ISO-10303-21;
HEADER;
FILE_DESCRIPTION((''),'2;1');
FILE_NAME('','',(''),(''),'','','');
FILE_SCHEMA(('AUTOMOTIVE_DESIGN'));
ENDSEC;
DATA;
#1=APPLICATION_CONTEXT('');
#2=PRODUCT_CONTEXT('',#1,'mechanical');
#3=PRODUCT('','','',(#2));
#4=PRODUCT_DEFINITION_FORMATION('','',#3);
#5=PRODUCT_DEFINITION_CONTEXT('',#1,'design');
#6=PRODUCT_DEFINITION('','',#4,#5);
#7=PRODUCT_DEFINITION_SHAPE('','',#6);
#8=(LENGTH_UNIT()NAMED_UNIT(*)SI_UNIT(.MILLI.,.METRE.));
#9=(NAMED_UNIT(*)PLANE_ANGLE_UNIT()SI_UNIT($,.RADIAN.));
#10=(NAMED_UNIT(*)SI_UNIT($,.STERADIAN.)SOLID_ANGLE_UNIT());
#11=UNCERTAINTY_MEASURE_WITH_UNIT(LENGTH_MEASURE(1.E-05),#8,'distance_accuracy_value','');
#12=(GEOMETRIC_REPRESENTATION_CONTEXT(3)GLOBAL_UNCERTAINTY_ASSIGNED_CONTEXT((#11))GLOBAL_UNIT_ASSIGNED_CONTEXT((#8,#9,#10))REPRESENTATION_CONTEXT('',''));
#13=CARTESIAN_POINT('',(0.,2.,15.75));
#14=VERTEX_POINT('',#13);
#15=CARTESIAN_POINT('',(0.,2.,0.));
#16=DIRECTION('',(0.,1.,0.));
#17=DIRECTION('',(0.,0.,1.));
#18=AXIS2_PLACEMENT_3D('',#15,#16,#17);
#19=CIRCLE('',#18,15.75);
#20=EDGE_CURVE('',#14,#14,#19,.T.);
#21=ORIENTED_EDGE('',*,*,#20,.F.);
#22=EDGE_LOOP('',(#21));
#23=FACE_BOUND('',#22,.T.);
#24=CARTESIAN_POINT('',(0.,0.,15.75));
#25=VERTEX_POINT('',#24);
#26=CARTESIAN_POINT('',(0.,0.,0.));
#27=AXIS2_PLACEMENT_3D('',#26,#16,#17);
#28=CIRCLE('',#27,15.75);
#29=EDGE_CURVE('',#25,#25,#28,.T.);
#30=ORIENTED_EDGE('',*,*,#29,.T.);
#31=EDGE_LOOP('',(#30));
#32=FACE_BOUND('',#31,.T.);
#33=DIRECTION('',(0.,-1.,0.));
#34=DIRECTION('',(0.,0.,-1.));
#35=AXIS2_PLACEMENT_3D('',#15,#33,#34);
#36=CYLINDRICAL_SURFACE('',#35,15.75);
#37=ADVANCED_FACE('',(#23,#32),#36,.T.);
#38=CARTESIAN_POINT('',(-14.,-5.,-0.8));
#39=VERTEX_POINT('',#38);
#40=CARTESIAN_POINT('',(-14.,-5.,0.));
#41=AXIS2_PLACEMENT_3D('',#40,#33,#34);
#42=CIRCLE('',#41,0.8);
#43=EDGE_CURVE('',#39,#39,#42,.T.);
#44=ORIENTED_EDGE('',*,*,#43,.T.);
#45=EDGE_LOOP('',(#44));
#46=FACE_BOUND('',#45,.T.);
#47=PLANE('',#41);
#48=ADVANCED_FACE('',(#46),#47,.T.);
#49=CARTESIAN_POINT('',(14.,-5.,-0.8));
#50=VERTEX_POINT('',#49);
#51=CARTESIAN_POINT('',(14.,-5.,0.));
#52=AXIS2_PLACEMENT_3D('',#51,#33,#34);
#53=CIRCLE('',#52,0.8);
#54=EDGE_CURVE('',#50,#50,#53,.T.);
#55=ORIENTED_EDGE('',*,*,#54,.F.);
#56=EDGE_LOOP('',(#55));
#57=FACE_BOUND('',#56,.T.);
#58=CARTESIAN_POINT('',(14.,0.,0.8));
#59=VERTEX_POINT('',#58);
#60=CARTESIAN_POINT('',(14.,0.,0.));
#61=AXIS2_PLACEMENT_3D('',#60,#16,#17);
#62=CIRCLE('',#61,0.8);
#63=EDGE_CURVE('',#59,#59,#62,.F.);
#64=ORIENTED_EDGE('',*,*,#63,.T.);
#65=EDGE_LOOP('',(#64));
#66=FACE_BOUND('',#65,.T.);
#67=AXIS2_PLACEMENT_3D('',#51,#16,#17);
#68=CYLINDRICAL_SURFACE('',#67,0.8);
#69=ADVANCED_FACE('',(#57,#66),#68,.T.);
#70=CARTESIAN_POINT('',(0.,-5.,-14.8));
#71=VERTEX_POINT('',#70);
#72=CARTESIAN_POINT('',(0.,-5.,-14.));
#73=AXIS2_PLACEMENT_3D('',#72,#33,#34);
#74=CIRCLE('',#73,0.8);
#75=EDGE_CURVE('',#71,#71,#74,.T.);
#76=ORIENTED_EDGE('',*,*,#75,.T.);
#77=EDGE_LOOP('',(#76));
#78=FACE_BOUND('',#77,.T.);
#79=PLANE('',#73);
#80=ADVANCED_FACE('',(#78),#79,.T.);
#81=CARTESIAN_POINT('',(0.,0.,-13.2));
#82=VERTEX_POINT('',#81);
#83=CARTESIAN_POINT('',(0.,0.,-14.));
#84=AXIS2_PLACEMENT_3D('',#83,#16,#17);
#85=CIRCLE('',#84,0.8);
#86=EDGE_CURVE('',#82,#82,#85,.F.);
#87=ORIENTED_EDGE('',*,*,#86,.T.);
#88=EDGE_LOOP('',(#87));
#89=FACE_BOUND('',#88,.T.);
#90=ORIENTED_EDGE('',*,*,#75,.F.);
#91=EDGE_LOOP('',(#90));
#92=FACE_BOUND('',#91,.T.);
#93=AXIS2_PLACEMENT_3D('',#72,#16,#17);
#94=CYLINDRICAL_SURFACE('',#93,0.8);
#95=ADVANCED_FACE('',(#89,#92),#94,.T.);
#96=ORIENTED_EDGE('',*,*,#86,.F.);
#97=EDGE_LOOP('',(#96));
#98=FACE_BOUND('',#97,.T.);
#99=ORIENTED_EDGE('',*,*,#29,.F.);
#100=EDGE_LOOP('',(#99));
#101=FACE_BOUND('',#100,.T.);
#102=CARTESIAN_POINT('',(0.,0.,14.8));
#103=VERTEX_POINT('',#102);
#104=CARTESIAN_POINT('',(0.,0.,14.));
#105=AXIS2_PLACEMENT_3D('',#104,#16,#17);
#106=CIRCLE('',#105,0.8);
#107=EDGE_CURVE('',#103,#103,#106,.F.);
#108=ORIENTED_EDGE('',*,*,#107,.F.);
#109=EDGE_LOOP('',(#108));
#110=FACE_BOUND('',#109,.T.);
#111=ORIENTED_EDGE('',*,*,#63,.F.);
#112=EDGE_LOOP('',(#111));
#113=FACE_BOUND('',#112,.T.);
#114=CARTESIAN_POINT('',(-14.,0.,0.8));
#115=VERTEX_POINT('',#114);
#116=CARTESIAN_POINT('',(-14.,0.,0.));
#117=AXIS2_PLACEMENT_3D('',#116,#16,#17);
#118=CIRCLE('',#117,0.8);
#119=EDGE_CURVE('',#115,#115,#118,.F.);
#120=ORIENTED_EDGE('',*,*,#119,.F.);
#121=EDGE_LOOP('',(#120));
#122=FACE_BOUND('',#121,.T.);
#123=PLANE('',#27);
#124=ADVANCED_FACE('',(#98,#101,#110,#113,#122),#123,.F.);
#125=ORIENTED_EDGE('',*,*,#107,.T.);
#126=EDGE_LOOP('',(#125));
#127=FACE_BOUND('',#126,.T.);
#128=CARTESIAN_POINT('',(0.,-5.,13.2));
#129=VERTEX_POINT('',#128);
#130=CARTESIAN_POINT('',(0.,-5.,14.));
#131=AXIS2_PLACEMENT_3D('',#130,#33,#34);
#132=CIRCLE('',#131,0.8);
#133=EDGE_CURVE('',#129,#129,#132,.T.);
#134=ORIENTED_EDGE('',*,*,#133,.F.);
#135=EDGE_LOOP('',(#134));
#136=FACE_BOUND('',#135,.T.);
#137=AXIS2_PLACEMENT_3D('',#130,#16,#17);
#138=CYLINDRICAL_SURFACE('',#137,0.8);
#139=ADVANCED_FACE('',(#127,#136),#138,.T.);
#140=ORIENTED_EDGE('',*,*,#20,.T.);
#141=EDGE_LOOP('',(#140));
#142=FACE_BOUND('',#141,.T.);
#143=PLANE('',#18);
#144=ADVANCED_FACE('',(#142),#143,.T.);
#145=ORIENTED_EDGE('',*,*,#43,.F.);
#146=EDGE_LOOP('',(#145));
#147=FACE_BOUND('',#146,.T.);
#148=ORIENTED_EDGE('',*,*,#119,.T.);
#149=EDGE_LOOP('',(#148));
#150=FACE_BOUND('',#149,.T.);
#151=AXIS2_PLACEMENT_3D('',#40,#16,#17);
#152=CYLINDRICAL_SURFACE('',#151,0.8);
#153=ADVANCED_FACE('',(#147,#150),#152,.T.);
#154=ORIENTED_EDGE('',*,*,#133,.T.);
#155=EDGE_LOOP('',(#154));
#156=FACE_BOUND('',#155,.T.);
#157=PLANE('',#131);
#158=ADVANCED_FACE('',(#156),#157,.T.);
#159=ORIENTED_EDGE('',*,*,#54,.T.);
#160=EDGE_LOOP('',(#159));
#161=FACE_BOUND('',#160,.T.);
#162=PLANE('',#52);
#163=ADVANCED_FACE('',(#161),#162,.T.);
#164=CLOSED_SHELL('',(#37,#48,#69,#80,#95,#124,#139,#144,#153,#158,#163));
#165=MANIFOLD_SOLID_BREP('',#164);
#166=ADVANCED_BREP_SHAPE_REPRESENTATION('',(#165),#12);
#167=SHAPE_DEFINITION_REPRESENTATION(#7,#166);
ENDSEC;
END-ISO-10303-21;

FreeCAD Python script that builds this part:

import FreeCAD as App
import Part
import Sketcher
from FreeCAD import Vector

doc = App.newDocument("Part")
body = doc.addObject("PartDesign::Body", "Body")

sketch1 = doc.addObject("Sketcher::SketchObject", "Sketch")
body.addObject(sketch1)
sketch1.AttachmentSupport = (doc.XZ_Plane, [""])
sketch1.MapMode = "FlatFace"
sketch1.addGeometry(Part.Circle(Vector(0, 0, 0), Vector(0, 0, 1), 15.75), False)
sketch1.addConstraint([
    Sketcher.Constraint("Coincident", 0, 3, -1, 1),
    Sketcher.Constraint("Diameter", 0, 31.5),
])
pad1 = doc.addObject("PartDesign::Pad", "Pad")
body.addObject(pad1)
pad1.Profile = sketch1
pad1.Length = 2
pad1.Reversed = True

sketch2 = doc.addObject("Sketcher::SketchObject", "Sketch001")
body.addObject(sketch2)
sketch2.AttachmentSupport = (doc.XZ_Plane, [""])
sketch2.MapMode = "FlatFace"
sketch2.addGeometry([
    Part.Circle(Vector(0, 14, 0), Vector(0, 0, 1), 0.8),
    Part.Circle(Vector(14, 0, 0), Vector(0, 0, 1), 0.8),
    Part.Circle(Vector(0, -14, 0), Vector(0, 0, 1), 0.8),
    Part.Circle(Vector(-14, 0, 0), Vector(0, 0, 1), 0.8),
], False)
sketch2.addConstraint([
    Sketcher.Constraint("Equal", 0, 1),
    Sketcher.Constraint("Equal", 1, 2),
    Sketcher.Constraint("Equal", 2, 3),
    Sketcher.Constraint("Symmetric", 0, 3, 2, 3, -1, 1),
    Sketcher.Constraint("Symmetric", 1, 3, 3, 3, -1, 1),
    Sketcher.Constraint("PointOnObject", 0, 3, -2),
    Sketcher.Constraint("PointOnObject", 1, 3, -1),
    Sketcher.Constraint("Diameter", 0, 1.6),
    Sketcher.Constraint("DistanceY", -1, 1, 0, 3, 14.0),
    Sketcher.Constraint("DistanceX", -1, 1, 1, 3, 14.0),
])
pad2 = doc.addObject("PartDesign::Pad", "Pad001")
body.addObject(pad2)
pad2.Profile = sketch2
pad2.Length = 5

doc.recompute()
